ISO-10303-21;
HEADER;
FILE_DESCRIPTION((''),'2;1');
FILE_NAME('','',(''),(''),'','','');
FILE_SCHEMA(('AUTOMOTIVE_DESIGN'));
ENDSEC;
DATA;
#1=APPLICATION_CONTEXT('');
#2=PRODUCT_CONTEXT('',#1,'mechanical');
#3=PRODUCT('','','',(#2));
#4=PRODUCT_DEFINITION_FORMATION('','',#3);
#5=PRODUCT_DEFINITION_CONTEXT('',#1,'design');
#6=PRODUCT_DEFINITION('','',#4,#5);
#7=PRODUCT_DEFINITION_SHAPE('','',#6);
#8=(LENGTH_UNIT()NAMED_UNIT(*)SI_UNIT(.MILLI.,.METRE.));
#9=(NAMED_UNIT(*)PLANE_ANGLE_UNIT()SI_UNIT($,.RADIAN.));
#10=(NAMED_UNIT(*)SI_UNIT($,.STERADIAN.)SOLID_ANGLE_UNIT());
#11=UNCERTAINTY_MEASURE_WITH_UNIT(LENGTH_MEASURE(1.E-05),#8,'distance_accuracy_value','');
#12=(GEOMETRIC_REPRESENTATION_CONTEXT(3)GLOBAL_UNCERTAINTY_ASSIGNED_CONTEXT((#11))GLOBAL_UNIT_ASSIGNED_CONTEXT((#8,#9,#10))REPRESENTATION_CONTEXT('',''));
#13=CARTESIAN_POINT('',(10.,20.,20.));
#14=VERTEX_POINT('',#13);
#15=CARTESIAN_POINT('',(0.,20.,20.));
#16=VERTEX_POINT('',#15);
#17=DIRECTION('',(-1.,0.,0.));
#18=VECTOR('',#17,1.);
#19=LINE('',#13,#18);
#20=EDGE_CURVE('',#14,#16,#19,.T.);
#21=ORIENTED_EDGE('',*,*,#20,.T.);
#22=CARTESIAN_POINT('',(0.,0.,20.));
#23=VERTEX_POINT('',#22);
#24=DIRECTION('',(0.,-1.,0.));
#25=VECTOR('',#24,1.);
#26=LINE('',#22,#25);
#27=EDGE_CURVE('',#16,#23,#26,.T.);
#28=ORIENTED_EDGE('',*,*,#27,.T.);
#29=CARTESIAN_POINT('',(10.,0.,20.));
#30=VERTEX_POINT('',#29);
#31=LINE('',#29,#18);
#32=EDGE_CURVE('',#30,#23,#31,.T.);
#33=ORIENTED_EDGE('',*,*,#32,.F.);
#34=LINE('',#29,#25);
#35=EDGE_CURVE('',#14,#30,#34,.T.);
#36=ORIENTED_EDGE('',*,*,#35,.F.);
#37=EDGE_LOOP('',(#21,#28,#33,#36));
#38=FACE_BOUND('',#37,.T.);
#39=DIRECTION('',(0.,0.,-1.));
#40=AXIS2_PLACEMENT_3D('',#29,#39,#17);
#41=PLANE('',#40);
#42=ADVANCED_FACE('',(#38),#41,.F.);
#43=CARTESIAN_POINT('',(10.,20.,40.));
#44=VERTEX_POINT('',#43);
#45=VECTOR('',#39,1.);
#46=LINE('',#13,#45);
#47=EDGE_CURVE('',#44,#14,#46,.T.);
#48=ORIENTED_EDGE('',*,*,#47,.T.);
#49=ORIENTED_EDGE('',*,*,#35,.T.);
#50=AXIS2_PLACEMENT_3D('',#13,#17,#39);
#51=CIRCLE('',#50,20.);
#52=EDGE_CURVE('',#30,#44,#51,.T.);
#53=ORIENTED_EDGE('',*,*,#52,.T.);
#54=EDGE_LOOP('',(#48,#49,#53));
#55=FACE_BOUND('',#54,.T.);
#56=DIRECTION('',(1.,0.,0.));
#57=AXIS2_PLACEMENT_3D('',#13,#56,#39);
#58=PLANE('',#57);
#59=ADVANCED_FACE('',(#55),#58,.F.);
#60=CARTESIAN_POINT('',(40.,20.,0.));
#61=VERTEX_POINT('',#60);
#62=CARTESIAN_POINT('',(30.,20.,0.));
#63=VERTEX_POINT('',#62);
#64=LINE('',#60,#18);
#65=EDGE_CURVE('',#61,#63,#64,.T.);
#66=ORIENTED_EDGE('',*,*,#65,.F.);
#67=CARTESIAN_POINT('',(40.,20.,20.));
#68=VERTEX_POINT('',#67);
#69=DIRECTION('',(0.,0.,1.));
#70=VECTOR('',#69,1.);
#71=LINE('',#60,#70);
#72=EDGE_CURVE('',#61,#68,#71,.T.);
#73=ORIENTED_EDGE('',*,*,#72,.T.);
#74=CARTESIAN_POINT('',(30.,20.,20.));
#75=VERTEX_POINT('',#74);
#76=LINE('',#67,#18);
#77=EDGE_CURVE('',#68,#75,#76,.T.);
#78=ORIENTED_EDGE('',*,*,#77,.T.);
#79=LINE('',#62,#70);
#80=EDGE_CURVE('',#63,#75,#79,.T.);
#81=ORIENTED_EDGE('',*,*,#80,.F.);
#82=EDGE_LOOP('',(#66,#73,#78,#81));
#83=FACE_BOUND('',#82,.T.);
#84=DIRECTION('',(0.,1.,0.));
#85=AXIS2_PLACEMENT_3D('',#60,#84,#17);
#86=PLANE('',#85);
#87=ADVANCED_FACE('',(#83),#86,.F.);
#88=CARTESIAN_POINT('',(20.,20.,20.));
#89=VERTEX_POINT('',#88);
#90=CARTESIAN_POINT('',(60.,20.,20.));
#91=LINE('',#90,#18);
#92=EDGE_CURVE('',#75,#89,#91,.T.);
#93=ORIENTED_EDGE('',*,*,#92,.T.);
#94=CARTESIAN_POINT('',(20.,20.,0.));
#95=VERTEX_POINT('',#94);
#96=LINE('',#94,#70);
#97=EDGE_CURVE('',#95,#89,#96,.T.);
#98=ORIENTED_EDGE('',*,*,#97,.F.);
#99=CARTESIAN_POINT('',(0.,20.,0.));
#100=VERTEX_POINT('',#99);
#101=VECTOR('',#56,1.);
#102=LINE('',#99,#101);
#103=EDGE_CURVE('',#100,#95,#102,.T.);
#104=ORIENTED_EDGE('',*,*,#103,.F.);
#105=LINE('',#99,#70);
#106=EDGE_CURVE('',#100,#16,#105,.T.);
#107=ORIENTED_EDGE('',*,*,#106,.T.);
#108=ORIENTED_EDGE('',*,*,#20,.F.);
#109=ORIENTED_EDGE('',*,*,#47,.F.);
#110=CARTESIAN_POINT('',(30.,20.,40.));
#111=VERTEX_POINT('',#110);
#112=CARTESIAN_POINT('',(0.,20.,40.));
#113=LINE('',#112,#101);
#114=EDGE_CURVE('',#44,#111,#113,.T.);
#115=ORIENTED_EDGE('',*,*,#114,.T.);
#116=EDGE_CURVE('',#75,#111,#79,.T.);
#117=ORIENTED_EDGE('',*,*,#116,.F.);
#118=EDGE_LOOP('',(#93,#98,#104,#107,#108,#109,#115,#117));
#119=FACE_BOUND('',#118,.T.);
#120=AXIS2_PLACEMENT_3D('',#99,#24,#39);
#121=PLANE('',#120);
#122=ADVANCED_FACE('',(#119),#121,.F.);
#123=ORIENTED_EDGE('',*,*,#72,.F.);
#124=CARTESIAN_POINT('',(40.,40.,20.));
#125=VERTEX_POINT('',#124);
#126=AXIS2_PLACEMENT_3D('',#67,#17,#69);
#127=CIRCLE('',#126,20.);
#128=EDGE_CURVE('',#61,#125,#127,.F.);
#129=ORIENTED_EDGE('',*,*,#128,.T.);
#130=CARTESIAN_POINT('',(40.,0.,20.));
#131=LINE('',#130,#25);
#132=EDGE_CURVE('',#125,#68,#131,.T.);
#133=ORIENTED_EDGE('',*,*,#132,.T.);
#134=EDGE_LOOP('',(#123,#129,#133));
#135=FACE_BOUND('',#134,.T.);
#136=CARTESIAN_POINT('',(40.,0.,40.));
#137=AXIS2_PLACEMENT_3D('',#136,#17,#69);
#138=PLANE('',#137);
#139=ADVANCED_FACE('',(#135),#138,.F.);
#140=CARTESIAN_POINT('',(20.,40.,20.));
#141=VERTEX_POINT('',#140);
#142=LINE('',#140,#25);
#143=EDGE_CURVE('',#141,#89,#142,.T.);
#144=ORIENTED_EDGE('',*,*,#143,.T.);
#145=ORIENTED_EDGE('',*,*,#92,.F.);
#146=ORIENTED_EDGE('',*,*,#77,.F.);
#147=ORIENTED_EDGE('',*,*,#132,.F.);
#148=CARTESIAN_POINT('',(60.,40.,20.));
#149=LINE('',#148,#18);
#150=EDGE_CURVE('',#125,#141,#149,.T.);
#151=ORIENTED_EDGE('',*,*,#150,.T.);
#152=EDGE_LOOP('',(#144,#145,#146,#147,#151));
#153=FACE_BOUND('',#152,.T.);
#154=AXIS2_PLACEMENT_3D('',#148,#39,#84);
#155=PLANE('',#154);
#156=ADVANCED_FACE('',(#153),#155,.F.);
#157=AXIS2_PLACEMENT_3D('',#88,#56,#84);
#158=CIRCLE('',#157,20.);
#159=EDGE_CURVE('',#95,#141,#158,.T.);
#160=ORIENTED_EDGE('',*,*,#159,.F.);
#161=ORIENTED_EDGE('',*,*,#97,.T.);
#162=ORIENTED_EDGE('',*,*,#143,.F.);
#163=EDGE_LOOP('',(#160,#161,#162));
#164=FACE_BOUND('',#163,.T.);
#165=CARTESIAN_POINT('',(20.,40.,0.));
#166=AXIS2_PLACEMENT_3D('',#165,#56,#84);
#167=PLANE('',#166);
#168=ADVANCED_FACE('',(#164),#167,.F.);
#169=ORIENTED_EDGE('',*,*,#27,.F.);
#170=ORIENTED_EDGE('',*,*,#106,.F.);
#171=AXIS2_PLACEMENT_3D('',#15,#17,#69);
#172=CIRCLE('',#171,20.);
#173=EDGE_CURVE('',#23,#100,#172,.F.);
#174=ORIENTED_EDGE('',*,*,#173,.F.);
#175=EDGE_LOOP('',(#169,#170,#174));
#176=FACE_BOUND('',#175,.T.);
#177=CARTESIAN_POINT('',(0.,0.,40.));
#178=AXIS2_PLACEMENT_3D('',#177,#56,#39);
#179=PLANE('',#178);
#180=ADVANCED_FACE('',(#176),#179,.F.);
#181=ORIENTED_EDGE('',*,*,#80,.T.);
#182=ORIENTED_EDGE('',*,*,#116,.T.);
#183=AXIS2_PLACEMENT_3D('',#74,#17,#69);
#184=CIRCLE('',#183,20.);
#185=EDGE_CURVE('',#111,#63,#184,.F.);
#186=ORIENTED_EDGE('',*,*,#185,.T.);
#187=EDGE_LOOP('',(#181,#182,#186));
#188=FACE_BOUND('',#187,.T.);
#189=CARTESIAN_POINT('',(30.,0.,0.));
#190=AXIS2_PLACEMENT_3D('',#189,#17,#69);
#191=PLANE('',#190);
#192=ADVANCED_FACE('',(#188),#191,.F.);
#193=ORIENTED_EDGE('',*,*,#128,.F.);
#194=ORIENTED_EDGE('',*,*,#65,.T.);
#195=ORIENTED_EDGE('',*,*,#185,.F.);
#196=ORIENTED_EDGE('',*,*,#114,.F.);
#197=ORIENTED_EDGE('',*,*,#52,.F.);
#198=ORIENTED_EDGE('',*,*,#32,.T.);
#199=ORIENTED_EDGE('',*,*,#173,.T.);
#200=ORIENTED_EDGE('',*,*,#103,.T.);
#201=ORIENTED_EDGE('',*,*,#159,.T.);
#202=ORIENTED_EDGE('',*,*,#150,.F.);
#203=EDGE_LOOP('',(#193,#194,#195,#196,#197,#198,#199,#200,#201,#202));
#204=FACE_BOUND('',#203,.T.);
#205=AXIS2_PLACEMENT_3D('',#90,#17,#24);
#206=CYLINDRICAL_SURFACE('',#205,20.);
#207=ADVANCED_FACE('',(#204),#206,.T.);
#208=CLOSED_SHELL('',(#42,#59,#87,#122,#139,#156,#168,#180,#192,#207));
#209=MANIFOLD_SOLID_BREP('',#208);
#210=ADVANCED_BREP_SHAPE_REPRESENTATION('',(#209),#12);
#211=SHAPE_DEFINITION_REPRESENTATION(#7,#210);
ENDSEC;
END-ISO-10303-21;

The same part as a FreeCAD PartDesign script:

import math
import FreeCAD as App
import Part
import Sketcher
from FreeCAD import Vector


def add_polygon(sketch, points):
    """Adds a closed chain of lines whose ends are joined by coincident constraints."""
    first, n = sketch.GeometryCount, len(points)
    for a, b in zip(points, points[1:] + points[:1]):
        sketch.addGeometry(Part.LineSegment(App.Vector(*a, 0), App.Vector(*b, 0)), False)
    for i in range(n):
        sketch.addConstraint(Sketcher.Constraint("Coincident", first + i, 2, first + (i + 1) % n, 1))

doc = App.newDocument("Part")
params = doc.addObject("Spreadsheet::Sheet", "Params")
for row, (alias, value) in enumerate([
    ("sketch1_width", "40 mm"),
    ("pad1_length", "40 mm"),
    ("sketch2_width", "20 mm"),
    ("sketch2_width2", "10 mm"),
    ("pocket1_length", "40 mm"),
    ("sketch3_width", "20 mm"),
    ("pocket2_length", "40 mm"),
    ("sketch4_radius", "20 mm"),
    ("pocket3_length", "40 mm"),
    ("sketch5_radius", "20 mm"),
    ("pocket4_length", "40 mm"),
    ("sketch6_radius", "20 mm"),
    ("pocket5_length", "10 mm"),
], start=1):
    params.set(f"A{row}", alias)
    params.set(f"B{row}", "=" + value)
    params.setAlias(f"B{row}", alias)

body = doc.addObject("PartDesign::Body", "Body")

sketch1 = doc.addObject("Sketcher::SketchObject", "Sketch")
body.addObject(sketch1)
sketch1.AttachmentSupport = (doc.XY_Plane, [""])
sketch1.MapMode = "FlatFace"
add_polygon(sketch1, [(0, 40), (0, 0), (40, 0), (40, 40)])
sketch1.addConstraint([
    Sketcher.Constraint("Vertical", 0),
    Sketcher.Constraint("Horizontal", 1),
    Sketcher.Constraint("Vertical", 2),
    Sketcher.Constraint("Horizontal", 3),
    Sketcher.Constraint("Coincident", 0, 2, -1, 1),
    Sketcher.Constraint("Equal", 3, 0),
    Sketcher.Constraint("DistanceX", 1, 1, 1, 2, 40.0),
])
sketch1.setExpression("Constraints[10]", "Params.sketch1_width")
pad1 = doc.addObject("PartDesign::Pad", "Pad")
body.addObject(pad1)
pad1.Profile = sketch1
pad1.setExpression("Length", "Params.pad1_length")

sketch2 = doc.addObject("Sketcher::SketchObject", "Sketch001")
body.addObject(sketch2)
sketch2.AttachmentSupport = (doc.XY_Plane, [""])
sketch2.MapMode = "FlatFace"
sketch2.AttachmentOffset = App.Placement(Vector(0, 0, 40), App.Rotation())
add_polygon(sketch2, [(0, 40), (0, 20), (20, 20), (20, 40)])
add_polygon(sketch2, [(30, 20), (30, 0), (40, 0), (40, 20)])
sketch2.addConstraint([
    Sketcher.Constraint("Vertical", 0),
    Sketcher.Constraint("Horizontal", 1),
    Sketcher.Constraint("Vertical", 2),
    Sketcher.Constraint("Horizontal", 3),
    Sketcher.Constraint("Vertical", 4),
    Sketcher.Constraint("Horizontal", 5),
    Sketcher.Constraint("Vertical", 6),
    Sketcher.Constraint("Horizontal", 7),
    Sketcher.Constraint("PointOnObject", 0, 2, -2),
    Sketcher.Constraint("PointOnObject", 4, 2, -1),
    Sketcher.Constraint("Horizontal", 1, 2, 6, 2),
    Sketcher.Constraint("Equal", 3, 0),
    Sketcher.Constraint("Equal", 2, 4),
    Sketcher.Constraint("DistanceX", 1, 1, 1, 2, 20.0),
    Sketcher.Constraint("DistanceX", 5, 1, 5, 2, 10.0),
    Sketcher.Constraint("DistanceX", -1, 1, 4, 2, 30.0),
])
sketch2.setExpression("Constraints[21]", "Params.sketch2_width")
sketch2.setExpression("Constraints[22]", "Params.sketch2_width2")
pocket1 = doc.addObject("PartDesign::Pocket", "Pocket")
body.addObject(pocket1)
pocket1.Profile = sketch2
pocket1.setExpression("Length", "Params.pocket1_length")

sketch3 = doc.addObject("Sketcher::SketchObject", "Sketch002")
body.addObject(sketch3)
sketch3.AttachmentSupport = (doc.YZ_Plane, [""])
sketch3.MapMode = "FlatFace"
sketch3.AttachmentOffset = App.Placement(Vector(0, 0, 20), App.Rotation())
add_polygon(sketch3, [(40, 20), (20, 20), (20, 40), (40, 40)])
sketch3.addConstraint([
    Sketcher.Constraint("Horizontal", 0),
    Sketcher.Constraint("Vertical", 1),
    Sketcher.Constraint("Horizontal", 2),
    Sketcher.Constraint("Vertical", 3),
    Sketcher.Constraint("Equal", 2, 1),
    Sketcher.Constraint("DistanceX", 0, 2, 0, 1, 20.0),
    Sketcher.Constraint("DistanceX", -1, 1, 0, 2, 20.0),
    Sketcher.Constraint("DistanceY", -1, 1, 0, 2, 20.0),
])
sketch3.setExpression("Constraints[9]", "Params.sketch3_width")
pocket2 = doc.addObject("PartDesign::Pocket", "Pocket001")
body.addObject(pocket2)
pocket2.Profile = sketch3
pocket2.setExpression("Length", "Params.pocket2_length")
pocket2.Reversed = True

sketch4 = doc.addObject("Sketcher::SketchObject", "Sketch003")
body.addObject(sketch4)
sketch4.AttachmentSupport = (doc.YZ_Plane, [""])
sketch4.MapMode = "FlatFace"
sketch4.AttachmentOffset = App.Placement(Vector(0, 0, 20), App.Rotation())
sketch4.addGeometry([
    Part.LineSegment(Vector(40, 20, 0), Vector(40, 0, 0)),
    Part.LineSegment(Vector(40, 0, 0), Vector(20, 0, 0)),
    Part.ArcOfCircle(Part.Circle(Vector(20, 20, 0), Vector(0, 0, 1), 20), math.radians(-90), math.radians(0)),
], False)
sketch4.addConstraint([
    Sketcher.Constraint("Coincident", 0, 2, 1, 1),
    Sketcher.Constraint("Tangent", 1, 2, 2, 1),
    Sketcher.Constraint("Tangent", 2, 2, 0, 1),
    Sketcher.Constraint("Vertical", 0),
    Sketcher.Constraint("Horizontal", 1),
    Sketcher.Constraint("PointOnObject", 0, 2, -1),
    Sketcher.Constraint("Radius", 2, 20.0),
    Sketcher.Constraint("DistanceX", -1, 1, 2, 3, 20.0),
])
sketch4.setExpression("Constraints[6]", "Params.sketch4_radius")
pocket3 = doc.addObject("PartDesign::Pocket", "Pocket002")
body.addObject(pocket3)
pocket3.Profile = sketch4
pocket3.setExpression("Length", "Params.pocket3_length")
pocket3.Reversed = True

sketch5 = doc.addObject("Sketcher::SketchObject", "Sketch004")
body.addObject(sketch5)
sketch5.AttachmentSupport = (doc.YZ_Plane, [""])
sketch5.MapMode = "FlatFace"
sketch5.addGeometry([
    Part.LineSegment(Vector(0, 0, 0), Vector(0, 20, 0)),
    Part.ArcOfCircle(Part.Circle(Vector(20, 20, 0), Vector(0, 0, 1), 20), math.radians(180), math.radians(270)),
    Part.LineSegment(Vector(20, 0, 0), Vector(0, 0, 0)),
    Part.LineSegment(Vector(0, 40, 0), Vector(20, 40, 0)),
    Part.ArcOfCircle(Part.Circle(Vector(20, 20, 0), Vector(0, 0, 1), 20), math.radians(90), math.radians(180)),
    Part.LineSegment(Vector(0, 20, 0), Vector(0, 40, 0)),
], False)
sketch5.addConstraint([
    Sketcher.Constraint("Tangent", 0, 2, 1, 1),
    Sketcher.Constraint("Tangent", 1, 2, 2, 1),
    Sketcher.Constraint("Coincident", 2, 2, 0, 1),
    Sketcher.Constraint("Tangent", 3, 2, 4, 1),
    Sketcher.Constraint("Tangent", 4, 2, 5, 1),
    Sketcher.Constraint("Coincident", 5, 2, 3, 1),
    Sketcher.Constraint("Vertical", 0),
    Sketcher.Constraint("Horizontal", 2),
    Sketcher.Constraint("Horizontal", 3),
    Sketcher.Constraint("Vertical", 5),
    Sketcher.Constraint("Coincident", 2, 2, -1, 1),
    Sketcher.Constraint("Coincident", 4, 3, 1, 3),
    Sketcher.Constraint("Equal", 1, 4),
    Sketcher.Constraint("Radius", 1, 20.0),
])
sketch5.setExpression("Constraints[13]", "Params.sketch5_radius")
pocket4 = doc.addObject("PartDesign::Pocket", "Pocket003")
body.addObject(pocket4)
pocket4.Profile = sketch5
pocket4.setExpression("Length", "Params.pocket4_length")
pocket4.Reversed = True

sketch6 = doc.addObject("Sketcher::SketchObject", "Sketch005")
body.addObject(sketch6)
sketch6.AttachmentSupport = (doc.YZ_Plane, [""])
sketch6.MapMode = "FlatFace"
sketch6.addGeometry([
    Part.LineSegment(Vector(20, 20, 0), Vector(0, 20, 0)),
    Part.ArcOfCircle(Part.Circle(Vector(20, 20, 0), Vector(0, 0, 1), 20), math.radians(90), math.radians(180)),
    Part.LineSegment(Vector(20, 40, 0), Vector(20, 20, 0)),
], False)
sketch6.addConstraint([
    Sketcher.Constraint("Coincident", 0, 2, 1, 2),
    Sketcher.Constraint("Coincident", 1, 1, 2, 1),
    Sketcher.Constraint("Coincident", 2, 2, 0, 1),
    Sketcher.Constraint("Horizontal", 0),
    Sketcher.Constraint("Vertical", 2),
    Sketcher.Constraint("Coincident", 2, 2, 1, 3),
    Sketcher.Constraint("PointOnObject", 0, 2, -2),
    Sketcher.Constraint("Radius", 1, 20.0),
    Sketcher.Constraint("DistanceY", -1, 1, 1, 3, 20.0),
])
sketch6.setExpression("Constraints[7]", "Params.sketch6_radius")
pocket5 = doc.addObject("PartDesign::Pocket", "Pocket004")
body.addObject(pocket5)
pocket5.Profile = sketch6
pocket5.setExpression("Length", "Params.pocket5_length")
pocket5.Reversed = True

doc.recompute()
